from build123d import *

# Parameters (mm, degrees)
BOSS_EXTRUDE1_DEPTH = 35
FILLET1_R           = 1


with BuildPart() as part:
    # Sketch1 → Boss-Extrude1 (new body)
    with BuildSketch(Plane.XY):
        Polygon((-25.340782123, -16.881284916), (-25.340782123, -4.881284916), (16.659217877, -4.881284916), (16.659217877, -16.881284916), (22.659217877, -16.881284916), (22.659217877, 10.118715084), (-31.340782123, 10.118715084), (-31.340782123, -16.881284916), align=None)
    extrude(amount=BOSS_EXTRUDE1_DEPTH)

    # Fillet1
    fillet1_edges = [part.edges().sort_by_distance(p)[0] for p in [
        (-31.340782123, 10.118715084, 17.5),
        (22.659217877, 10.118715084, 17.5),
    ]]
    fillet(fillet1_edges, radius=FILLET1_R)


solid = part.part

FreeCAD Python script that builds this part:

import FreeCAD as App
import Part
import Sketcher
from FreeCAD import Vector
Q = App.Units.Quantity


def edges_at(feature, points):
    """Names of the edges that pass closest to the given points."""
    edges = feature.Shape.Edges
    near = lambda p: min(range(len(edges)), key=lambda i: edges[i].distToShape(Part.Vertex(*p))[0])
    return sorted({f"Edge{near(p) + 1}" for p in points})


def add_polygon(sketch, points):
    """Adds a closed chain of lines whose ends are joined by coincident constraints."""
    first, n = sketch.GeometryCount, len(points)
    for a, b in zip(points, points[1:] + points[:1]):
        sketch.addGeometry(Part.LineSegment(App.Vector(*a, 0), App.Vector(*b, 0)), False)
    for i in range(n):
        sketch.addConstraint(Sketcher.Constraint("Coincident", first + i, 2, first + (i + 1) % n, 1))

doc = App.newDocument("Part")
params = doc.addObject("Spreadsheet::Sheet", "Params")
for row, (alias, value) in enumerate([
    ("sketch1_width", "42 mm"),
    ("sketch1_width2", "6 mm"),
    ("sketch1_height", "12 mm"),
    ("sketch1_height2", "27 mm"),
    ("pad1_length", "35 mm"),
    ("fillet_radius", "1 mm"),
], start=1):
    params.set(f"A{row}", alias)
    params.set(f"B{row}", "=" + value)
    params.setAlias(f"B{row}", alias)

body = doc.addObject("PartDesign::Body", "Body")

# Sketch on XY plane
sketch1 = doc.addObject("Sketcher::SketchObject", "Sketch")
body.addObject(sketch1)
sketch1.AttachmentSupport = (doc.XY_Plane, [""])
sketch1.MapMode = "FlatFace"
add_polygon(sketch1, [(-25, -17), (-25, -5), (17, -5), (17, -17), (23, -17), (23, 10), (-31, 10), (-31, -17)])  # lines 0-7
sketch1.addConstraint([
    Sketcher.Constraint("Vertical", 0),
    Sketcher.Constraint("Horizontal", 1),
    Sketcher.Constraint("Vertical", 2),
    Sketcher.Constraint("Horizontal", 3),
    Sketcher.Constraint("Vertical", 4),
    Sketcher.Constraint("Horizontal", 5),
    Sketcher.Constraint("Vertical", 6),
    Sketcher.Constraint("Horizontal", 7),
    Sketcher.Constraint("Horizontal", 3, 2, 6, 2),
    Sketcher.Constraint("Equal", 3, 7),
    Sketcher.Constraint("DistanceX", 1, 1, 1, 2, Q("42 mm")),
    Sketcher.Constraint("DistanceX", 3, 1, 3, 2, Q("6 mm")),
    Sketcher.Constraint("DistanceY", 0, 1, 0, 2, Q("12 mm")),
    Sketcher.Constraint("DistanceY", 4, 1, 4, 2, Q("27 mm")),
    Sketcher.Constraint("DistanceX", 0, 2, -1, 1, Q("25.340782 mm")),
    Sketcher.Constraint("DistanceY", 0, 2, -1, 1, Q("4.881285 mm")),
])
sketch1.setExpression("Constraints[18]", "Params.sketch1_width")
sketch1.setExpression("Constraints[19]", "Params.sketch1_width2")
sketch1.setExpression("Constraints[20]", "Params.sketch1_height")
sketch1.setExpression("Constraints[21]", "Params.sketch1_height2")
pad1 = doc.addObject("PartDesign::Pad", "Pad")
body.addObject(pad1)
pad1.Profile = sketch1
pad1.setExpression("Length", "Params.pad1_length")
doc.recompute()

fillet = doc.addObject("PartDesign::Fillet", "Fillet")
body.addObject(fillet)
fillet.Base = (pad1, edges_at(pad1, [(-31.341, 10.119, 17.5), (22.659, 10.119, 17.5)]))
fillet.setExpression("Radius", "Params.fillet_radius")

doc.recompute()
